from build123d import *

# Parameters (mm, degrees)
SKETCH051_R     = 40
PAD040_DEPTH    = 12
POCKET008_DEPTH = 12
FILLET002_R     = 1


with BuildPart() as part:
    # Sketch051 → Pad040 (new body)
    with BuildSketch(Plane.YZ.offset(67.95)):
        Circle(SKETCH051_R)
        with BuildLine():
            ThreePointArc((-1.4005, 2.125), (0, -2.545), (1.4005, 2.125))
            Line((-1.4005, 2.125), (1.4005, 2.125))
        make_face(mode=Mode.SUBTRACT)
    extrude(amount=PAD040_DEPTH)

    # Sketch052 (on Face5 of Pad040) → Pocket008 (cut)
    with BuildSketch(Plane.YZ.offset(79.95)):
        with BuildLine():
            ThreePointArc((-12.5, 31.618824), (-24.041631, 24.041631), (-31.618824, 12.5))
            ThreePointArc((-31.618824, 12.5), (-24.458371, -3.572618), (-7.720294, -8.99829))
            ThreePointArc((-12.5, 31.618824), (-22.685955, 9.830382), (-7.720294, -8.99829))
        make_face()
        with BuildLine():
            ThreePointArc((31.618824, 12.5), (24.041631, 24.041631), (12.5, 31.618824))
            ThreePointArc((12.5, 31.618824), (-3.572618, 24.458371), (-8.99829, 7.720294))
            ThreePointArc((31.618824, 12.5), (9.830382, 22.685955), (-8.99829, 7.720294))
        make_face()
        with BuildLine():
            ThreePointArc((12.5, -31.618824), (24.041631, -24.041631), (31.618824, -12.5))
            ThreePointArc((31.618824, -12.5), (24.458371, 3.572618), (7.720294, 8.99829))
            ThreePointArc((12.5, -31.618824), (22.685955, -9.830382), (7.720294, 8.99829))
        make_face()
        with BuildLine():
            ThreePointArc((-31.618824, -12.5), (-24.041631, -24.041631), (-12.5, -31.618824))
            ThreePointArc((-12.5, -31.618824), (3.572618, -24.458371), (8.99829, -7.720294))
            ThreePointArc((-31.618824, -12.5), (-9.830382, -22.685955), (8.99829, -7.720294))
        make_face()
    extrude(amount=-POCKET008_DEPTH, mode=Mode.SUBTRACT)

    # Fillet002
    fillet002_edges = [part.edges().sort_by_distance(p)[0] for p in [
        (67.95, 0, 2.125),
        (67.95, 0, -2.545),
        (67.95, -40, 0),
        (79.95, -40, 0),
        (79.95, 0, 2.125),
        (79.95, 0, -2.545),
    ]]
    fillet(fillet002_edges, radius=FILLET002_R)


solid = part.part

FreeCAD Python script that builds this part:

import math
import FreeCAD as App
import Part
import Sketcher


def edges_at(feature, points):
    """Names of the edges that pass closest to the given points."""
    edges = feature.Shape.Edges
    near = lambda p: min(range(len(edges)), key=lambda i: edges[i].distToShape(Part.Vertex(*p))[0])
    return sorted({f"Edge{near(p) + 1}" for p in points})

doc = App.newDocument("Part")
params = doc.addObject("Spreadsheet::Sheet", "Params")
for row, (alias, value) in enumerate([
    ("sketch1_diameter", "80 mm"),
    ("pad1_length", "12 mm"),
    ("sketch2_radius", "33.999999 mm"),
    ("pocket1_length", "12 mm"),
    ("fillet_radius", "1 mm"),
], start=1):
    params.set(f"A{row}", alias)
    params.set(f"B{row}", "=" + value)
    params.setAlias(f"B{row}", alias)

body = doc.addObject("PartDesign::Body", "Body")

# Sketch on YZ plane
sketch1 = body.newObject("Sketcher::SketchObject", "Sketch")
sketch1.AttachmentSupport = (doc.getObject("YZ_Plane"), [""])
sketch1.MapMode = "FlatFace"
sketch1.AttachmentOffset = App.Placement(App.Vector(0, 0, 67.95), App.Rotation())
sketch1.addGeometry([
    Part.Circle(App.Vector(0, 0, 0), App.Vector(0, 0, 1), 40),
    Part.ArcOfCircle(Part.Circle(App.Vector(0, 0, 0), App.Vector(0, 0, 1), 2.5), math.radians(123), math.radians(417)),
    Part.LineSegment(App.Vector(-1.4, 2.1, 0), App.Vector(1.4, 2.1, 0)),
], False)
sketch1.addConstraint([
    Sketcher.Constraint("Coincident", 1, 1, 2, 1),
    Sketcher.Constraint("Coincident", 2, 2, 1, 2),
    Sketcher.Constraint("Horizontal", 2),
    Sketcher.Constraint("Coincident", 0, 3, -1, 1),
    Sketcher.Constraint("Coincident", 1, 3, -1, 1),
    Sketcher.Constraint("Diameter", 0, 80.0),
    Sketcher.Constraint("Radius", 1, 2.545),
    Sketcher.Constraint("DistanceX", 2, 1, 2, 2, 2.801),
])
sketch1.setExpression("Constraints[5]", "Params.sketch1_diameter")
pad1 = body.newObject("PartDesign::Pad", "Pad")
pad1.Profile = sketch1
pad1.setExpression("Length", "Params.pad1_length")

# Sketch on YZ plane
sketch2 = body.newObject("Sketcher::SketchObject", "Sketch001")
sketch2.AttachmentSupport = (doc.getObject("YZ_Plane"), [""])
sketch2.MapMode = "FlatFace"
sketch2.AttachmentOffset = App.Placement(App.Vector(0, 0, 79.95), App.Rotation())
sketch2.addGeometry([
    Part.ArcOfCircle(Part.Circle(App.Vector(0, 0, 0), App.Vector(0, 0, 1), 34), math.radians(112), math.radians(158)),  # 0
    Part.ArcOfCircle(Part.Circle(App.Vector(-10, 13, 0), App.Vector(0, 0, 1), 22), math.radians(-180), math.radians(-84)),  # 1
    Part.ArcOfCircle(Part.Circle(App.Vector(0, 13, 0), App.Vector(0, 0, 1), 23), math.radians(123), math.radians(250)),  # 2
    Part.ArcOfCircle(Part.Circle(App.Vector(0, 0, 0), App.Vector(0, 0, 1), 34), math.radians(22), math.radians(68)),  # 3
    Part.ArcOfCircle(Part.Circle(App.Vector(13, 10, 0), App.Vector(0, 0, 1), 22), math.radians(90), math.radians(186)),  # 4
    Part.ArcOfCircle(Part.Circle(App.Vector(13, 0, 0), App.Vector(0, 0, 1), 23), math.radians(33), math.radians(160)),  # 5
    Part.ArcOfCircle(Part.Circle(App.Vector(0, 0, 0), App.Vector(0, 0, 1), 34), math.radians(-68), math.radians(-22)),  # 6
    Part.ArcOfCircle(Part.Circle(App.Vector(10, -13, 0), App.Vector(0, 0, 1), 22), math.radians(0), math.radians(96)),  # 7
    Part.ArcOfCircle(Part.Circle(App.Vector(0, -13, 0), App.Vector(0, 0, 1), 23), math.radians(-57), math.radians(70)),  # 8
    Part.ArcOfCircle(Part.Circle(App.Vector(0, 0, 0), App.Vector(0, 0, 1), 34), math.radians(-158), math.radians(-112)),  # 9
    Part.ArcOfCircle(Part.Circle(App.Vector(-13, -10, 0), App.Vector(0, 0, 1), 22), math.radians(-90), math.radians(6)),  # 10
    Part.ArcOfCircle(Part.Circle(App.Vector(-13, 0, 0), App.Vector(0, 0, 1), 23), math.radians(-147), math.radians(-20)),  # 11
], False)
sketch2.addConstraint([
    Sketcher.Constraint("Coincident", 0, 2, 1, 1),
    Sketcher.Constraint("Coincident", 1, 2, 2, 2),
    Sketcher.Constraint("Coincident", 2, 1, 0, 1),
    Sketcher.Constraint("Coincident", 3, 2, 4, 1),
    Sketcher.Constraint("Coincident", 4, 2, 5, 2),
    Sketcher.Constraint("Coincident", 5, 1, 3, 1),
    Sketcher.Constraint("Coincident", 6, 2, 7, 1),
    Sketcher.Constraint("Coincident", 7, 2, 8, 2),
    Sketcher.Constraint("Coincident", 8, 1, 6, 1),
    Sketcher.Constraint("Coincident", 9, 2, 10, 1),
    Sketcher.Constraint("Coincident", 10, 2, 11, 2),
    Sketcher.Constraint("Coincident", 11, 1, 9, 1),
    Sketcher.Constraint("Coincident", 0, 3, -1, 1),
    Sketcher.Constraint("Coincident", 3, 3, -1, 1),
    Sketcher.Constraint("Coincident", 6, 3, -1, 1),
    Sketcher.Constraint("Coincident", 9, 3, -1, 1),
    Sketcher.Constraint("Equal", 0, 3),
    Sketcher.Constraint("Equal", 1, 4),
    Sketcher.Constraint("Equal", 2, 5),
    Sketcher.Constraint("Equal", 3, 6),
    Sketcher.Constraint("Equal", 4, 7),
    Sketcher.Constraint("Equal", 5, 8),
    Sketcher.Constraint("Equal", 6, 9),
    Sketcher.Constraint("Equal", 7, 10),
    Sketcher.Constraint("Equal", 8, 11),
    Sketcher.Constraint("Symmetric", 1, 3, 7, 3, -1, 1),
    Sketcher.Constraint("Symmetric", 2, 3, 8, 3, -1, 1),
    Sketcher.Constraint("Symmetric", 4, 3, 10, 3, -1, 1),
    Sketcher.Constraint("Symmetric", 5, 3, 11, 3, -1, 1),
    Sketcher.Constraint("PointOnObject", 2, 3, -2),
    Sketcher.Constraint("PointOnObject", 5, 3, -1),
    Sketcher.Constraint("Horizontal", 1, 3, 2, 3),
    Sketcher.Constraint("Horizontal", 2, 3, 0, 2),
    Sketcher.Constraint("Horizontal", 2, 1, 3, 2),
    Sketcher.Constraint("Horizontal", 0, 2, 5, 1),
    Sketcher.Constraint("Vertical", 4, 3, 5, 3),
    Sketcher.Constraint("Vertical", 11, 3, 2, 1),
    Sketcher.Constraint("Radius", 0, 33.999999),
    Sketcher.Constraint("DistanceX", 1, 3, -1, 1, 10.0),
    Sketcher.Constraint("DistanceX", 2, 1, 4, 3, 25.0),
])
sketch2.setExpression("Constraints[37]", "Params.sketch2_radius")
pocket1 = body.newObject("PartDesign::Pocket", "Pocket")
pocket1.Profile = sketch2
pocket1.setExpression("Length", "Params.pocket1_length")
doc.recompute()

fillet = body.newObject("PartDesign::Fillet", "Fillet")
fillet.Base = (pocket1, edges_at(pocket1, [
    (67.95, 0, 2.125),
    (67.95, 0, -2.545),
    (67.95, -40, 0),
    (79.95, -40, 0),
    (79.95, 0, 2.125),
    (79.95, 0, -2.545),
]))
fillet.setExpression("Radius", "Params.fillet_radius")

doc.recompute()
